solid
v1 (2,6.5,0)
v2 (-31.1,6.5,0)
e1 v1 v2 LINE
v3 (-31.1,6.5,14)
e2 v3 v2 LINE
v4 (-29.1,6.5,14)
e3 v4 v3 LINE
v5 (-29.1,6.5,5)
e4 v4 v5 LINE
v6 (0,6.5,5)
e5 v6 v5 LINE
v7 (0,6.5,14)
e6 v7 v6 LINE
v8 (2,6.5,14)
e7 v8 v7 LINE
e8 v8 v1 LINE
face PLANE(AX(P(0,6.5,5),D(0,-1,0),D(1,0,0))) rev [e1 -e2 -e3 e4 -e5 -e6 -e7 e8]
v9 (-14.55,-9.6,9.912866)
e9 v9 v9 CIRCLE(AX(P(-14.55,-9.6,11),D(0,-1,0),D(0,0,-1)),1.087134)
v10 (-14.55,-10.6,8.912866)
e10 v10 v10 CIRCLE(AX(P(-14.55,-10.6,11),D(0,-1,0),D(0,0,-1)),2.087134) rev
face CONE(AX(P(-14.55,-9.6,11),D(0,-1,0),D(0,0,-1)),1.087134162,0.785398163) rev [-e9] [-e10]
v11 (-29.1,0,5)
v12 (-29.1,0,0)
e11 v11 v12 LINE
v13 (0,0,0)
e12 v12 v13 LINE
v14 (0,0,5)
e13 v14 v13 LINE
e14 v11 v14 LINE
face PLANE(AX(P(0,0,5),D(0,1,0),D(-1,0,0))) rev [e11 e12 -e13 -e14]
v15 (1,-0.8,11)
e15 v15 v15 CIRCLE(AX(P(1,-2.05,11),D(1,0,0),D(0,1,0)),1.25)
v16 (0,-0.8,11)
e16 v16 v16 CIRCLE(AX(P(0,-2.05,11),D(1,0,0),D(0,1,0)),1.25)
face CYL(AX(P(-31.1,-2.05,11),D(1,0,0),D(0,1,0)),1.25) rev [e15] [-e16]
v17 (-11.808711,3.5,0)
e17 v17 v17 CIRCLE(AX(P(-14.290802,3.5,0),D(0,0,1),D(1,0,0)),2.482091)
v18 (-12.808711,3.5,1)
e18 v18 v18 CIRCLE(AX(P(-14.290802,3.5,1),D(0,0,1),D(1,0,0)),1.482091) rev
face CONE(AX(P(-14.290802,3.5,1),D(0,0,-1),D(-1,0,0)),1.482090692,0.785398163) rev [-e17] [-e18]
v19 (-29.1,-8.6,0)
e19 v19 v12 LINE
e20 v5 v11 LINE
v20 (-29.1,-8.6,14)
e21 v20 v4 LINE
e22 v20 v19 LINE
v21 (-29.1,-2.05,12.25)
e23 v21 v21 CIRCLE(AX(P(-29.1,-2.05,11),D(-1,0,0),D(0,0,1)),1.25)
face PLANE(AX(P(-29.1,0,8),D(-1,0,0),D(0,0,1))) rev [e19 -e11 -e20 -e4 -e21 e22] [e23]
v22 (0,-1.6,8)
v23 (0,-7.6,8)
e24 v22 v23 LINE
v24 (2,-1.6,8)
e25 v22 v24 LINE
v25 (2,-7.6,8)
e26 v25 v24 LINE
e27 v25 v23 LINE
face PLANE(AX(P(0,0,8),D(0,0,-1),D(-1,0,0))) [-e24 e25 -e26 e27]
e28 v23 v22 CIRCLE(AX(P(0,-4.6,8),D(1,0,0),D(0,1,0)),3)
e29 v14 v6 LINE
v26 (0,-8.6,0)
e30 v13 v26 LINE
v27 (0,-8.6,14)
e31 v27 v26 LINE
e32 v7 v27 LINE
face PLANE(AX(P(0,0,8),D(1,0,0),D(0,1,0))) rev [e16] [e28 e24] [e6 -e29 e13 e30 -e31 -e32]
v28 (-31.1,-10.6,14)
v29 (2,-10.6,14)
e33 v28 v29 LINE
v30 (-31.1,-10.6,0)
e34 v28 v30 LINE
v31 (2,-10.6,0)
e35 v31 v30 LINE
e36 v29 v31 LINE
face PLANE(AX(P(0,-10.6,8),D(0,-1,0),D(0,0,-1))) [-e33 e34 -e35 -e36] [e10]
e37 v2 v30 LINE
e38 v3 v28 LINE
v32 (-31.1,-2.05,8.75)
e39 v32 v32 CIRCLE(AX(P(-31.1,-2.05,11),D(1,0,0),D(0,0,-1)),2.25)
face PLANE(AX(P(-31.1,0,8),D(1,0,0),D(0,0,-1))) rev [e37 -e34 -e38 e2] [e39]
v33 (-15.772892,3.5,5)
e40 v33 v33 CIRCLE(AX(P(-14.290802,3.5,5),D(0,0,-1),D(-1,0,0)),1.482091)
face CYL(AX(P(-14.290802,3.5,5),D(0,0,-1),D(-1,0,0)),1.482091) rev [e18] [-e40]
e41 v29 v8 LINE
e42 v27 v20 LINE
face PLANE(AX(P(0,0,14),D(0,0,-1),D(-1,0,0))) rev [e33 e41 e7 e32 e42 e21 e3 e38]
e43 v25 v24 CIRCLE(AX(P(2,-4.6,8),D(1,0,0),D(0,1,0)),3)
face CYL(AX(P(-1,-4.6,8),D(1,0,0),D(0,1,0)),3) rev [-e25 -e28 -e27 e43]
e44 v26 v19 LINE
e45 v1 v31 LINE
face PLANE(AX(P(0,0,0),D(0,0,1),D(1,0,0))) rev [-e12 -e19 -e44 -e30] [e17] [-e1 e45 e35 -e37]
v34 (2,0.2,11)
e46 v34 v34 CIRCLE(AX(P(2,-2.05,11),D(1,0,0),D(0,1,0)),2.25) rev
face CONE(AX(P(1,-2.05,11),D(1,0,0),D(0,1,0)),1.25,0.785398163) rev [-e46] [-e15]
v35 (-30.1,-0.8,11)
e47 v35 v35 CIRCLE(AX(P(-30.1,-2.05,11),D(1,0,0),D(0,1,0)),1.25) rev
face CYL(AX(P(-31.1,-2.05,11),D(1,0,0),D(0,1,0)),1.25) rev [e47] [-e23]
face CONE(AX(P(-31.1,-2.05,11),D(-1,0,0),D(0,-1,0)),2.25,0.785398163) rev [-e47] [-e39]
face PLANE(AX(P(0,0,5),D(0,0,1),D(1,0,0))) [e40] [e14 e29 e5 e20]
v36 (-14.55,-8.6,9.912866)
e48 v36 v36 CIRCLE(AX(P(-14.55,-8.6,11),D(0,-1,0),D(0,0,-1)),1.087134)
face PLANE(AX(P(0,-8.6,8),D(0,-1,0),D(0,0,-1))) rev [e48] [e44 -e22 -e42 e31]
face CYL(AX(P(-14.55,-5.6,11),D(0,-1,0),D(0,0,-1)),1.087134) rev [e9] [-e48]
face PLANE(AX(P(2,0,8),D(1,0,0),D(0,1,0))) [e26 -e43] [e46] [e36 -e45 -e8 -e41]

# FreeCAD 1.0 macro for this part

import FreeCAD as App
import Part
import Sketcher

V = App.Vector


def edges_at(feature, points):
    """Names of the edges that pass closest to the given points."""
    edges = feature.Shape.Edges
    near = lambda p: min(range(len(edges)), key=lambda i: edges[i].distToShape(Part.Vertex(*p))[0])
    return sorted({f"Edge{near(p) + 1}" for p in points})

doc = App.newDocument("Part")
params = doc.addObject("Spreadsheet::Sheet", "Params")
for row, (alias, value) in enumerate([
    ("sketch1_width", "29.1 mm"),
    ("sketch1_height", "6.5 mm"),
    ("pad1_length", "5 mm"),
    ("sketch2_width", "2 mm"),
    ("sketch2_width2", "33.1 mm"),
    ("sketch2_height", "17.1 mm"),
    ("sketch2_height2", "15.1 mm"),
    ("pad2_length", "8 mm"),
    ("sketch3_diameter", "6 mm"),
    ("pocket1_length", "3 mm"),
    ("sketch4_width", "2 mm"),
    ("sketch4_width2", "29.1 mm"),
    ("sketch4_height", "17.1 mm"),
    ("sketch4_height2", "15.1 mm"),
    ("pad3_length", "6 mm"),
    ("sketch5_diameter", "2.5 mm"),
    ("chamfer_size", "1 mm"),
    ("pocket3_length", "5 mm"),
    ("chamfer2_size", "1 mm"),
    ("pocket4_length", "5 mm"),
    ("chamfer3_size", "1 mm"),
], start=1):
    params.set(f"A{row}", alias)
    params.set(f"B{row}", "=" + value)
    params.setAlias(f"B{row}", alias)

body = doc.addObject("PartDesign::Body", "Body")

# Sketch on XY plane
sketch1 = body.newObject("Sketcher::SketchObject", "Sketch")
sketch1.AttachmentSupport = (doc.getObject("XY_Plane"), [""])
sketch1.MapMode = "FlatFace"
sketch1.addGeometry([
    Part.LineSegment(V(-29, 6, 0), V(-29, 0, 0)),
    Part.LineSegment(V(-29, 0, 0), V(0, 0, 0)),
    Part.LineSegment(V(0, 0, 0), V(0, 6, 0)),
    Part.LineSegment(V(0, 6, 0), V(-29, 6, 0)),
], False)
sketch1.addConstraint([
    Sketcher.Constraint("Coincident", 0, 2, 1, 1),
    Sketcher.Constraint("Coincident", 1, 2, 2, 1),
    Sketcher.Constraint("Coincident", 2, 2, 3, 1),
    Sketcher.Constraint("Coincident", 3, 2, 0, 1),
    Sketcher.Constraint("Vertical", 0),
    Sketcher.Constraint("Horizontal", 1),
    Sketcher.Constraint("Vertical", 2),
    Sketcher.Constraint("Horizontal", 3),
    Sketcher.Constraint("Coincident", 1, 2, -1, 1),
    Sketcher.Constraint("DistanceX", 1, 1, 1, 2, 29.1),
    Sketcher.Constraint("DistanceY", 0, 2, 0, 1, 6.5),
])
sketch1.setExpression("Constraints[9]", "Params.sketch1_width")
sketch1.setExpression("Constraints[10]", "Params.sketch1_height")
pad1 = body.newObject("PartDesign::Pad", "Pad")
pad1.Profile = sketch1
pad1.setExpression("Length", "Params.pad1_length")

# Sketch on XY plane
sketch2 = body.newObject("Sketcher::SketchObject", "Sketch001")
sketch2.AttachmentSupport = (doc.getObject("XY_Plane"), [""])
sketch2.MapMode = "FlatFace"
sketch2.addGeometry([
    Part.LineSegment(V(2, -10.6, 0), V(-31.1, -10.6, 0)),  # 0
    Part.LineSegment(V(-31.1, -10.6, 0), V(-31.1, 6.5, 0)),  # 1
    Part.LineSegment(V(-31.1, 6.5, 0), V(-29.1, 6.5, 0)),  # 2
    Part.LineSegment(V(-29.1, 6.5, 0), V(-29.1, -8.6, 0)),  # 3
    Part.LineSegment(V(-29.1, -8.6, 0), V(0, -8.6, 0)),  # 4
    Part.LineSegment(V(0, -8.6, 0), V(0, 6.5, 0)),  # 5
    Part.LineSegment(V(0, 6.5, 0), V(2, 6.5, 0)),  # 6
    Part.LineSegment(V(2, 6.5, 0), V(2, -10.6, 0)),  # 7
], False)
sketch2.addConstraint([
    Sketcher.Constraint("Coincident", 0, 2, 1, 1),
    Sketcher.Constraint("Coincident", 1, 2, 2, 1),
    Sketcher.Constraint("Coincident", 2, 2, 3, 1),
    Sketcher.Constraint("Coincident", 3, 2, 4, 1),
    Sketcher.Constraint("Coincident", 4, 2, 5, 1),
    Sketcher.Constraint("Coincident", 5, 2, 6, 1),
    Sketcher.Constraint("Coincident", 6, 2, 7, 1),
    Sketcher.Constraint("Coincident", 7, 2, 0, 1),
    Sketcher.Constraint("Horizontal", 0),
    Sketcher.Constraint("Vertical", 1),
    Sketcher.Constraint("Horizontal", 2),
    Sketcher.Constraint("Vertical", 3),
    Sketcher.Constraint("Horizontal", 4),
    Sketcher.Constraint("Vertical", 5),
    Sketcher.Constraint("Horizontal", 6),
    Sketcher.Constraint("Vertical", 7),
    Sketcher.Constraint("PointOnObject", 4, 2, -2),
    Sketcher.Constraint("Horizontal", 2, 2, 5, 2),
    Sketcher.Constraint("Equal", 2, 6),
    Sketcher.Constraint("DistanceX", 2, 1, 2, 2, 2.0),
    Sketcher.Constraint("DistanceX", 0, 2, 0, 1, 33.1),
    Sketcher.Constraint("DistanceY", 1, 1, 1, 2, 17.1),
    Sketcher.Constraint("DistanceY", 3, 2, 3, 1, 15.1),
    Sketcher.Constraint("DistanceY", 0, 2, -1, 1, 10.6),
])
sketch2.setExpression("Constraints[19]", "Params.sketch2_width")
sketch2.setExpression("Constraints[20]", "Params.sketch2_width2")
sketch2.setExpression("Constraints[21]", "Params.sketch2_height")
sketch2.setExpression("Constraints[22]", "Params.sketch2_height2")
pad2 = body.newObject("PartDesign::Pad", "Pad001")
pad2.Profile = sketch2
pad2.setExpression("Length", "Params.pad2_length")

# Sketch on YZ plane
sketch3 = body.newObject("Sketcher::SketchObject", "Sketch002")
sketch3.AttachmentSupport = (doc.getObject("YZ_Plane"), [""])
sketch3.MapMode = "FlatFace"
sketch3.AttachmentOffset = App.Placement(V(0, 0, 2), App.Rotation())
sketch3.addGeometry(Part.Circle(V(-4.6, 8, 0), V(0, 0, 1), 3), False)
sketch3.addConstraint([
    Sketcher.Constraint("Diameter", 0, 6.0),
    Sketcher.Constraint("DistanceY", -1, 1, 0, 3, 8.0),
    Sketcher.Constraint("DistanceX", 0, 3, -1, 1, 4.6),
])
sketch3.setExpression("Constraints[0]", "Params.sketch3_diameter")
pocket1 = body.newObject("PartDesign::Pocket", "Pocket")
pocket1.Profile = sketch3
pocket1.setExpression("Length", "Params.pocket1_length")

# Sketch on XY plane
sketch4 = body.newObject("Sketcher::SketchObject", "Sketch003")
sketch4.AttachmentSupport = (doc.getObject("XY_Plane"), [""])
sketch4.MapMode = "FlatFace"
sketch4.AttachmentOffset = App.Placement(V(0, 0, 8), App.Rotation())
sketch4.addGeometry([
    Part.LineSegment(V(2, -10.6, 0), V(2, 6.5, 0)),  # 0
    Part.LineSegment(V(2, 6.5, 0), V(0, 6.5, 0)),  # 1
    Part.LineSegment(V(0, 6.5, 0), V(0, -8.6, 0)),  # 2
    Part.LineSegment(V(0, -8.6, 0), V(-29.1, -8.6, 0)),  # 3
    Part.LineSegment(V(-29.1, -8.6, 0), V(-29.1, 6.5, 0)),  # 4
    Part.LineSegment(V(-29.1, 6.5, 0), V(-31.1, 6.5, 0)),  # 5
    Part.LineSegment(V(-31.1, 6.5, 0), V(-31.1, -10.6, 0)),  # 6
    Part.LineSegment(V(-31.1, -10.6, 0), V(2, -10.6, 0)),  # 7
], False)
sketch4.addConstraint([
    Sketcher.Constraint("Coincident", 0, 2, 1, 1),
    Sketcher.Constraint("Coincident", 1, 2, 2, 1),
    Sketcher.Constraint("Coincident", 2, 2, 3, 1),
    Sketcher.Constraint("Coincident", 3, 2, 4, 1),
    Sketcher.Constraint("Coincident", 4, 2, 5, 1),
    Sketcher.Constraint("Coincident", 5, 2, 6, 1),
    Sketcher.Constraint("Coincident", 6, 2, 7, 1),
    Sketcher.Constraint("Coincident", 7, 2, 0, 1),
    Sketcher.Constraint("Vertical", 0),
    Sketcher.Constraint("Horizontal", 1),
    Sketcher.Constraint("Vertical", 2),
    Sketcher.Constraint("Horizontal", 3),
    Sketcher.Constraint("Vertical", 4),
    Sketcher.Constraint("Horizontal", 5),
    Sketcher.Constraint("Vertical", 6),
    Sketcher.Constraint("Horizontal", 7),
    Sketcher.Constraint("PointOnObject", 1, 2, -2),
    Sketcher.Constraint("Horizontal", 1, 2, 4, 2),
    Sketcher.Constraint("Equal", 1, 5),
    Sketcher.Constraint("DistanceX", 1, 2, 1, 1, 2.0),
    Sketcher.Constraint("DistanceX", 3, 2, 3, 1, 29.1),
    Sketcher.Constraint("DistanceY", 0, 1, 0, 2, 17.1),
    Sketcher.Constraint("DistanceY", 2, 2, 2, 1, 15.1),
    Sketcher.Constraint("DistanceY", -1, 1, 0, 2, 6.5),
])
sketch4.setExpression("Constraints[19]", "Params.sketch4_width")
sketch4.setExpression("Constraints[20]", "Params.sketch4_width2")
sketch4.setExpression("Constraints[21]", "Params.sketch4_height")
sketch4.setExpression("Constraints[22]", "Params.sketch4_height2")
pad3 = body.newObject("PartDesign::Pad", "Pad002")
pad3.Profile = sketch4
pad3.setExpression("Length", "Params.pad3_length")

# Sketch on YZ plane
sketch5 = body.newObject("Sketcher::SketchObject", "Sketch004")
sketch5.AttachmentSupport = (doc.getObject("YZ_Plane"), [""])
sketch5.MapMode = "FlatFace"
sketch5.AttachmentOffset = App.Placement(V(0, 0, 2), App.Rotation())
sketch5.addGeometry(Part.Circle(V(-2, 11, 0), V(0, 0, 1), 1.2), False)
sketch5.addConstraint([
    Sketcher.Constraint("Diameter", 0, 2.5),
    Sketcher.Constraint("DistanceY", -1, 1, 0, 3, 11.0),
    Sketcher.Constraint("DistanceX", 0, 3, -1, 1, 2.05),
])
sketch5.setExpression("Constraints[0]", "Params.sketch5_diameter")
pocket2 = body.newObject("PartDesign::Pocket", "Pocket001")
pocket2.Profile = sketch5
pocket2.Type = "ThroughAll"
doc.recompute()

chamfer = body.newObject("PartDesign::Chamfer", "Chamfer")
chamfer.Base = (pocket2, edges_at(pocket2, [(-31.1, -3.3, 11), (2, -3.3, 11)]))
chamfer.setExpression("Size", "Params.chamfer_size")

# Sketch on XZ plane
sketch6 = body.newObject("Sketcher::SketchObject", "Sketch005")
sketch6.AttachmentSupport = (doc.getObject("XZ_Plane"), [""])
sketch6.MapMode = "FlatFace"
sketch6.AttachmentOffset = App.Placement(V(0, 0, 10.6), App.Rotation())
sketch6.addGeometry(Part.Circle(V(-14.6, 11, 0), V(0, 0, 1), 1.1), False)
sketch6.addConstraint([
    Sketcher.Constraint("DistanceY", -1, 1, 0, 3, 11.0),
    Sketcher.Constraint("Diameter", 0, 2.174268),
    Sketcher.Constraint("DistanceX", 0, 3, -1, 1, 14.55),
])
pocket3 = body.newObject("PartDesign::Pocket", "Pocket002")
pocket3.Profile = sketch6
pocket3.setExpression("Length", "Params.pocket3_length")
doc.recompute()

chamfer2 = body.newObject("PartDesign::Chamfer", "Chamfer001")
chamfer2.Base = (pocket3, edges_at(pocket3, [(-14.55, -10.6, 12.087)]))
chamfer2.setExpression("Size", "Params.chamfer2_size")

# Sketch on XY plane
sketch7 = body.newObject("Sketcher::SketchObject", "Sketch006")
sketch7.AttachmentSupport = (doc.getObject("XY_Plane"), [""])
sketch7.MapMode = "FlatFace"
sketch7.addGeometry(Part.Circle(V(-14.3, 3.5, 0), V(0, 0, 1), 1.5), False)
sketch7.addConstraint([
    Sketcher.Constraint("DistanceY", -1, 1, 0, 3, 3.5),
    Sketcher.Constraint("Diameter", 0, 2.964181),
    Sketcher.Constraint("DistanceX", 0, 3, -1, 1, 14.290802),
])
pocket4 = body.newObject("PartDesign::Pocket", "Pocket003")
pocket4.Profile = sketch7
pocket4.setExpression("Length", "Params.pocket4_length")
pocket4.Reversed = True
doc.recompute()

chamfer3 = body.newObject("PartDesign::Chamfer", "Chamfer002")
chamfer3.Base = (pocket4, edges_at(pocket4, [(-12.809, 3.5, 0)]))
chamfer3.setExpression("Size", "Params.chamfer3_size")

doc.recompute()
